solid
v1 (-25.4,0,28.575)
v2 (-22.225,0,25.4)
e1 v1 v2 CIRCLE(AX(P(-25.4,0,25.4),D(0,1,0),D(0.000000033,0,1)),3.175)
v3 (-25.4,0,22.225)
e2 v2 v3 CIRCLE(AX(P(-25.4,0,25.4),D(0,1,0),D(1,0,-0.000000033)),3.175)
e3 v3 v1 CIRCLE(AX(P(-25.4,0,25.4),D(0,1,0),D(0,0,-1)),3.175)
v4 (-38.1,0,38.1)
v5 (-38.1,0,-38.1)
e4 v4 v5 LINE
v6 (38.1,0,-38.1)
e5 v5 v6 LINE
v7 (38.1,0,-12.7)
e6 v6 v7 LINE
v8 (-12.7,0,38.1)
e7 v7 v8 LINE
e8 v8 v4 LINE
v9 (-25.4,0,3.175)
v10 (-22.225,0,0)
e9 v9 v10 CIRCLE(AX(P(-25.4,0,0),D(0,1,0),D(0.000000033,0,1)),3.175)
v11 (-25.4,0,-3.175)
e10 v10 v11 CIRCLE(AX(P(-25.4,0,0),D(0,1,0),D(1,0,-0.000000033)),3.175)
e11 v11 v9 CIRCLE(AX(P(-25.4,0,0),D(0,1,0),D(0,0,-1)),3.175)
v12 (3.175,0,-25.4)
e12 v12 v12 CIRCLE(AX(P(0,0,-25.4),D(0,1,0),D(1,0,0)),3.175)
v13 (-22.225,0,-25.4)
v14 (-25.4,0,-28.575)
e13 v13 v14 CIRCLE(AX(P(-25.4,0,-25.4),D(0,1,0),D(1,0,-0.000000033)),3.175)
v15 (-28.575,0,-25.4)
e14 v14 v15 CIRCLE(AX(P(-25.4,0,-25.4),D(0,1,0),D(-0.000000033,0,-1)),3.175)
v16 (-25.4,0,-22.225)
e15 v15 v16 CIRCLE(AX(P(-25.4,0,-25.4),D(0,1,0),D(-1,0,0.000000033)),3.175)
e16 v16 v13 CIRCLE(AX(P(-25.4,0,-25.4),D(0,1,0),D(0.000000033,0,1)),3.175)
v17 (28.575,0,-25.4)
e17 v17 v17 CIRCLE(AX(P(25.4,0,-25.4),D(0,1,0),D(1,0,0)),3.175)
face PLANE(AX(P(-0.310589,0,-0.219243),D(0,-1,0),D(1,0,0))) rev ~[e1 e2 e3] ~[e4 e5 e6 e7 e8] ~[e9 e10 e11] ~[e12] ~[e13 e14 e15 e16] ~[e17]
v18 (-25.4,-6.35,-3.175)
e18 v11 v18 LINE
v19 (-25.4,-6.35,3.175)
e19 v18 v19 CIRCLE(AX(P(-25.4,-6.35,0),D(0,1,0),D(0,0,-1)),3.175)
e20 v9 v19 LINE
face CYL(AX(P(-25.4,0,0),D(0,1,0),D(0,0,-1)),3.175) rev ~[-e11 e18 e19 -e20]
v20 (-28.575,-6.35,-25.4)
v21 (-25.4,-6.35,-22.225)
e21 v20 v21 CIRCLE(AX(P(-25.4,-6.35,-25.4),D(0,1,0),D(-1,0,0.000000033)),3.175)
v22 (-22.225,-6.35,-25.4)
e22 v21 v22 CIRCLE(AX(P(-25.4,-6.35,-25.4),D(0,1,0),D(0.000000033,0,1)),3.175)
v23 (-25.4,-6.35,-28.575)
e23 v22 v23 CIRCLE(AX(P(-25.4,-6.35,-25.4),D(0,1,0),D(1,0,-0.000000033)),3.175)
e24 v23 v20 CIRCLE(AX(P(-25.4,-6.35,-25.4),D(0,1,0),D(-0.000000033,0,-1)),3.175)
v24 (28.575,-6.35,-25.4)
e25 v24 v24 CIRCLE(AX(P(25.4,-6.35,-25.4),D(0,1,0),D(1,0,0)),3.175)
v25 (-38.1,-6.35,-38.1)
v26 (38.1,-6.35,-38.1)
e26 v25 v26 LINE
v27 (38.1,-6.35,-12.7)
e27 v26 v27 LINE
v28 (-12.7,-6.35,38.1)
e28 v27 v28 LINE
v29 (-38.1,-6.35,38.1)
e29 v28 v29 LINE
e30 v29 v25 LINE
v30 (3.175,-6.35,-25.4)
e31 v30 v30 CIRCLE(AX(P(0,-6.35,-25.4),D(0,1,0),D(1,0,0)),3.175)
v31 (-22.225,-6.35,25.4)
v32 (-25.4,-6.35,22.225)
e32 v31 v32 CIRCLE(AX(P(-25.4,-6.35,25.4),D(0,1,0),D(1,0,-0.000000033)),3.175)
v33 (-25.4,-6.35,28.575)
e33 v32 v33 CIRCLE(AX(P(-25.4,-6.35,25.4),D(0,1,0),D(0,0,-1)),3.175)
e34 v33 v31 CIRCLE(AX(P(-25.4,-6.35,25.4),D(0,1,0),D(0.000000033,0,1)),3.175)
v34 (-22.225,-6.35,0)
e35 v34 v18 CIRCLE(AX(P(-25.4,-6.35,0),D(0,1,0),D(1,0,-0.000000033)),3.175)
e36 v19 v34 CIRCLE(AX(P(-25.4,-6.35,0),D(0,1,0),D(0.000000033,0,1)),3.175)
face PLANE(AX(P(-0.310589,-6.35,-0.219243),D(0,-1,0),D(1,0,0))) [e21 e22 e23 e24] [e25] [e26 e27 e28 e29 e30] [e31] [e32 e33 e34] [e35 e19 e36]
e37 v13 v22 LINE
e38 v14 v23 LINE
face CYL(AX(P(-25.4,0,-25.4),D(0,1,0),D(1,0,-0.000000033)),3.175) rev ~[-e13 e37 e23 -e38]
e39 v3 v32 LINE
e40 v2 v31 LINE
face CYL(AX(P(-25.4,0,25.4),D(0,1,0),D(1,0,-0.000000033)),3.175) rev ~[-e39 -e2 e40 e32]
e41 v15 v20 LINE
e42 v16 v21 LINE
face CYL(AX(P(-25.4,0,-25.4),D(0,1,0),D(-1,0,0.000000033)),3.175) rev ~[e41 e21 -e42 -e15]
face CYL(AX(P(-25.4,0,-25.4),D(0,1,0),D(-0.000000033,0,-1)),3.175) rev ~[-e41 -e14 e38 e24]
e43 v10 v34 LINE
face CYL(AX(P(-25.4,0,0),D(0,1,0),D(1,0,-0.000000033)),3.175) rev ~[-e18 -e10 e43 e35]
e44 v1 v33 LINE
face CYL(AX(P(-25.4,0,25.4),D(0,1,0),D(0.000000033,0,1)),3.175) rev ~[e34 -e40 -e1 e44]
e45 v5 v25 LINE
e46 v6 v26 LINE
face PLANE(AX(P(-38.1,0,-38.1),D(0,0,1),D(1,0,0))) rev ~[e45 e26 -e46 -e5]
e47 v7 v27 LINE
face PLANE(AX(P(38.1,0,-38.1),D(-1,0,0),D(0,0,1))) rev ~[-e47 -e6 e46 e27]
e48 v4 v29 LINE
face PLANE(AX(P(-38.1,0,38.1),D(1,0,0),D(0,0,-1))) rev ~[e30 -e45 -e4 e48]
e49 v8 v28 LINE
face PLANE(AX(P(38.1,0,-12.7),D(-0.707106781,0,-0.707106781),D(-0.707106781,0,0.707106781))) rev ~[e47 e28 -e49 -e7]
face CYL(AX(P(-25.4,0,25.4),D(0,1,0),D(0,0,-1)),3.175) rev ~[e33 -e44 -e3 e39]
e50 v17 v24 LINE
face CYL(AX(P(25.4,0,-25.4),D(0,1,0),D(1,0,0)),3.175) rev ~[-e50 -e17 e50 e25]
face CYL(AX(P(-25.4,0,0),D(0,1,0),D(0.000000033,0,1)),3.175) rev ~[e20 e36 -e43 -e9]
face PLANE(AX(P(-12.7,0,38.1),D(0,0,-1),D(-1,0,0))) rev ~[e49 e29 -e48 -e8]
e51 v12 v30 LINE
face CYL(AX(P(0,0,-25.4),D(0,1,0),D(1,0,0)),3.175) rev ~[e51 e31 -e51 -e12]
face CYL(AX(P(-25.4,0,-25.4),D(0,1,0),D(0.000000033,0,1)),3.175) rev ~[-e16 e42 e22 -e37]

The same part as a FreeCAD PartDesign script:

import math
import FreeCAD as App
import Part
import Sketcher
Q = App.Units.Quantity


def add_polygon(sketch, points):
    """Adds a closed chain of lines whose ends are joined by coincident constraints."""
    first, n = sketch.GeometryCount, len(points)
    for a, b in zip(points, points[1:] + points[:1]):
        sketch.addGeometry(Part.LineSegment(App.Vector(*a, 0), App.Vector(*b, 0)), False)
    for i in range(n):
        sketch.addConstraint(Sketcher.Constraint("Coincident", first + i, 2, first + (i + 1) % n, 1))

doc = App.newDocument("Part")
params = doc.addObject("Spreadsheet::Sheet", "Params")
for row, (alias, value) in enumerate([
    ("sketch1_diameter", "0.25 in"),
    ("sketch1_width", "1 in"),
    ("sketch1_width2", "3 in"),
    ("pad1_length", "0.25 in"),
], start=1):
    params.set(f"A{row}", alias)
    params.set(f"B{row}", "=" + value)
    params.setAlias(f"B{row}", alias)

body = doc.addObject("PartDesign::Body", "Body")

sketch1 = doc.addObject("Sketcher::SketchObject", "Sketch")
body.addObject(sketch1)
sketch1.AttachmentSupport = (doc.XZ_Plane, [""])
sketch1.MapMode = "FlatFace"
add_polygon(sketch1, [(38.1, -12.7), (-12.7, 38.1), (-38.1, 38.1), (-38.1, -38.1), (38.1, -38.1)])
sketch1.addGeometry(Part.ArcOfCircle(Part.Circle(App.Vector(-25.4, -25.4, 0), App.Vector(0, 0, 1), 3.175), math.radians(-179.999998), math.radians(-90.000002)), False)
sketch1.addGeometry(Part.ArcOfCircle(Part.Circle(App.Vector(-25.4, -25.4, 0), App.Vector(0, 0, 1), 3.175), math.radians(90.000002), math.radians(179.999998)), False)
sketch1.addGeometry(Part.ArcOfCircle(Part.Circle(App.Vector(-25.4, -25.4, 0), App.Vector(0, 0, 1), 3.175), math.radians(0.000002), math.radians(89.999998)), False)
sketch1.addGeometry(Part.ArcOfCircle(Part.Circle(App.Vector(-25.4, -25.4, 0), App.Vector(0, 0, 1), 3.175), math.radians(-89.999998), math.radians(-0.000002)), False)
sketch1.addGeometry(Part.Circle(App.Vector(0, -25.4, 0), App.Vector(0, 0, 1), 3.175), False)
sketch1.addGeometry(Part.Circle(App.Vector(25.4, -25.4, 0), App.Vector(0, 0, 1), 3.175), False)
sketch1.addGeometry(Part.ArcOfCircle(Part.Circle(App.Vector(-25.4, 25.4, 0), App.Vector(0, 0, 1), 3.175), math.radians(0.000002), math.radians(89.999998)), False)
sketch1.addGeometry(Part.ArcOfCircle(Part.Circle(App.Vector(-25.4, 25.4, 0), App.Vector(0, 0, 1), 3.175), math.radians(-89.999998), math.radians(-0.000002)), False)
sketch1.addGeometry(Part.ArcOfCircle(Part.Circle(App.Vector(-25.4, 25.4, 0), App.Vector(0, 0, 1), 3.175), math.radians(90), math.radians(270)), False)
sketch1.addGeometry(Part.ArcOfCircle(Part.Circle(App.Vector(-25.4, 0, 0), App.Vector(0, 0, 1), 3.175), math.radians(0.000002), math.radians(89.999998)), False)
sketch1.addGeometry(Part.ArcOfCircle(Part.Circle(App.Vector(-25.4, 0, 0), App.Vector(0, 0, 1), 3.175), math.radians(-89.999998), math.radians(-0.000002)), False)
sketch1.addGeometry(Part.ArcOfCircle(Part.Circle(App.Vector(-25.4, 0, 0), App.Vector(0, 0, 1), 3.175), math.radians(90), math.radians(270)), False)
sketch1.addConstraint(Sketcher.Constraint("Tangent", 5, 1, 6, 2))
sketch1.addConstraint(Sketcher.Constraint("Tangent", 6, 1, 7, 2))
sketch1.addConstraint(Sketcher.Constraint("Tangent", 7, 1, 8, 2))
sketch1.addConstraint(Sketcher.Constraint("Tangent", 8, 1, 5, 2))
sketch1.addConstraint(Sketcher.Constraint("Tangent", 11, 1, 12, 2))
sketch1.addConstraint(Sketcher.Constraint("Tangent", 12, 1, 13, 2))
sketch1.addConstraint(Sketcher.Constraint("Tangent", 13, 1, 11, 2))
sketch1.addConstraint(Sketcher.Constraint("Tangent", 14, 1, 15, 2))
sketch1.addConstraint(Sketcher.Constraint("Tangent", 15, 1, 16, 2))
sketch1.addConstraint(Sketcher.Constraint("Tangent", 16, 1, 14, 2))
sketch1.addConstraint(Sketcher.Constraint("Horizontal", 1))
sketch1.addConstraint(Sketcher.Constraint("Vertical", 2))
sketch1.addConstraint(Sketcher.Constraint("Horizontal", 3))
sketch1.addConstraint(Sketcher.Constraint("Vertical", 4))
sketch1.addConstraint(Sketcher.Constraint("Equal", 5, 6))
sketch1.addConstraint(Sketcher.Constraint("Equal", 8, 9))
sketch1.addConstraint(Sketcher.Constraint("Equal", 9, 10))
sketch1.addConstraint(Sketcher.Constraint("Equal", 10, 11))
sketch1.addConstraint(Sketcher.Constraint("Equal", 13, 14))
sketch1.addConstraint(Sketcher.Constraint("Symmetric", 10, 3, 11, 3, -1, 1))
sketch1.addConstraint(Sketcher.Constraint("Symmetric", 1, 2, 3, 2, -1, 1))
sketch1.addConstraint(Sketcher.Constraint("Symmetric", 5, 3, 10, 3, -2))
sketch1.addConstraint(Sketcher.Constraint("Symmetric", 15, 1, 16, 1, -1))
sketch1.addConstraint(Sketcher.Constraint("PointOnObject", 9, 3, -2))
sketch1.addConstraint(Sketcher.Constraint("PointOnObject", 14, 1, -1))
sketch1.addConstraint(Sketcher.Constraint("Horizontal", 8, 3, 9, 3))
sketch1.addConstraint(Sketcher.Constraint("Horizontal", 10, 3, 5, 1))
sketch1.addConstraint(Sketcher.Constraint("Horizontal", 5, 1, 7, 1))
sketch1.addConstraint(Sketcher.Constraint("Horizontal", 13, 3, 11, 1))
sketch1.addConstraint(Sketcher.Constraint("Vertical", 13, 3, 14, 3))
sketch1.addConstraint(Sketcher.Constraint("Vertical", 16, 3, 6, 1))
sketch1.addConstraint(Sketcher.Constraint("Vertical", 6, 1, 8, 1))
sketch1.addConstraint(Sketcher.Constraint("Vertical", 8, 1, 12, 1))
sketch1.addConstraint(Sketcher.Constraint("Vertical", 12, 1, 13, 1))
sketch1.addConstraint(Sketcher.Constraint("Vertical", 13, 1, 15, 1))
sketch1.addConstraint(Sketcher.Constraint("Equal", 3, 2))
sketch1.addConstraint(Sketcher.Constraint("Equal", 1, 4))
sketch1.addConstraint(Sketcher.Constraint("Diameter", 9, Q("0.25 in")))
sketch1.addConstraint(Sketcher.Constraint("DistanceX", 1, 2, 1, 1, Q("1 in")))
sketch1.addConstraint(Sketcher.Constraint("DistanceX", 3, 1, 3, 2, Q("3 in")))
sketch1.addConstraint(Sketcher.Constraint("DistanceX", 5, 3, -1, 1, Q("1 in")))
sketch1.addConstraint(Sketcher.Constraint("DistanceY", 5, 3, -1, 1, Q("1 in")))
sketch1.setExpression("Constraints[42]", "Params.sketch1_diameter")
sketch1.setExpression("Constraints[43]", "Params.sketch1_width")
sketch1.setExpression("Constraints[44]", "Params.sketch1_width2")
pad1 = doc.addObject("PartDesign::Pad", "Pad")
body.addObject(pad1)
pad1.Profile = sketch1
pad1.setExpression("Length", "Params.pad1_length")

doc.recompute()
